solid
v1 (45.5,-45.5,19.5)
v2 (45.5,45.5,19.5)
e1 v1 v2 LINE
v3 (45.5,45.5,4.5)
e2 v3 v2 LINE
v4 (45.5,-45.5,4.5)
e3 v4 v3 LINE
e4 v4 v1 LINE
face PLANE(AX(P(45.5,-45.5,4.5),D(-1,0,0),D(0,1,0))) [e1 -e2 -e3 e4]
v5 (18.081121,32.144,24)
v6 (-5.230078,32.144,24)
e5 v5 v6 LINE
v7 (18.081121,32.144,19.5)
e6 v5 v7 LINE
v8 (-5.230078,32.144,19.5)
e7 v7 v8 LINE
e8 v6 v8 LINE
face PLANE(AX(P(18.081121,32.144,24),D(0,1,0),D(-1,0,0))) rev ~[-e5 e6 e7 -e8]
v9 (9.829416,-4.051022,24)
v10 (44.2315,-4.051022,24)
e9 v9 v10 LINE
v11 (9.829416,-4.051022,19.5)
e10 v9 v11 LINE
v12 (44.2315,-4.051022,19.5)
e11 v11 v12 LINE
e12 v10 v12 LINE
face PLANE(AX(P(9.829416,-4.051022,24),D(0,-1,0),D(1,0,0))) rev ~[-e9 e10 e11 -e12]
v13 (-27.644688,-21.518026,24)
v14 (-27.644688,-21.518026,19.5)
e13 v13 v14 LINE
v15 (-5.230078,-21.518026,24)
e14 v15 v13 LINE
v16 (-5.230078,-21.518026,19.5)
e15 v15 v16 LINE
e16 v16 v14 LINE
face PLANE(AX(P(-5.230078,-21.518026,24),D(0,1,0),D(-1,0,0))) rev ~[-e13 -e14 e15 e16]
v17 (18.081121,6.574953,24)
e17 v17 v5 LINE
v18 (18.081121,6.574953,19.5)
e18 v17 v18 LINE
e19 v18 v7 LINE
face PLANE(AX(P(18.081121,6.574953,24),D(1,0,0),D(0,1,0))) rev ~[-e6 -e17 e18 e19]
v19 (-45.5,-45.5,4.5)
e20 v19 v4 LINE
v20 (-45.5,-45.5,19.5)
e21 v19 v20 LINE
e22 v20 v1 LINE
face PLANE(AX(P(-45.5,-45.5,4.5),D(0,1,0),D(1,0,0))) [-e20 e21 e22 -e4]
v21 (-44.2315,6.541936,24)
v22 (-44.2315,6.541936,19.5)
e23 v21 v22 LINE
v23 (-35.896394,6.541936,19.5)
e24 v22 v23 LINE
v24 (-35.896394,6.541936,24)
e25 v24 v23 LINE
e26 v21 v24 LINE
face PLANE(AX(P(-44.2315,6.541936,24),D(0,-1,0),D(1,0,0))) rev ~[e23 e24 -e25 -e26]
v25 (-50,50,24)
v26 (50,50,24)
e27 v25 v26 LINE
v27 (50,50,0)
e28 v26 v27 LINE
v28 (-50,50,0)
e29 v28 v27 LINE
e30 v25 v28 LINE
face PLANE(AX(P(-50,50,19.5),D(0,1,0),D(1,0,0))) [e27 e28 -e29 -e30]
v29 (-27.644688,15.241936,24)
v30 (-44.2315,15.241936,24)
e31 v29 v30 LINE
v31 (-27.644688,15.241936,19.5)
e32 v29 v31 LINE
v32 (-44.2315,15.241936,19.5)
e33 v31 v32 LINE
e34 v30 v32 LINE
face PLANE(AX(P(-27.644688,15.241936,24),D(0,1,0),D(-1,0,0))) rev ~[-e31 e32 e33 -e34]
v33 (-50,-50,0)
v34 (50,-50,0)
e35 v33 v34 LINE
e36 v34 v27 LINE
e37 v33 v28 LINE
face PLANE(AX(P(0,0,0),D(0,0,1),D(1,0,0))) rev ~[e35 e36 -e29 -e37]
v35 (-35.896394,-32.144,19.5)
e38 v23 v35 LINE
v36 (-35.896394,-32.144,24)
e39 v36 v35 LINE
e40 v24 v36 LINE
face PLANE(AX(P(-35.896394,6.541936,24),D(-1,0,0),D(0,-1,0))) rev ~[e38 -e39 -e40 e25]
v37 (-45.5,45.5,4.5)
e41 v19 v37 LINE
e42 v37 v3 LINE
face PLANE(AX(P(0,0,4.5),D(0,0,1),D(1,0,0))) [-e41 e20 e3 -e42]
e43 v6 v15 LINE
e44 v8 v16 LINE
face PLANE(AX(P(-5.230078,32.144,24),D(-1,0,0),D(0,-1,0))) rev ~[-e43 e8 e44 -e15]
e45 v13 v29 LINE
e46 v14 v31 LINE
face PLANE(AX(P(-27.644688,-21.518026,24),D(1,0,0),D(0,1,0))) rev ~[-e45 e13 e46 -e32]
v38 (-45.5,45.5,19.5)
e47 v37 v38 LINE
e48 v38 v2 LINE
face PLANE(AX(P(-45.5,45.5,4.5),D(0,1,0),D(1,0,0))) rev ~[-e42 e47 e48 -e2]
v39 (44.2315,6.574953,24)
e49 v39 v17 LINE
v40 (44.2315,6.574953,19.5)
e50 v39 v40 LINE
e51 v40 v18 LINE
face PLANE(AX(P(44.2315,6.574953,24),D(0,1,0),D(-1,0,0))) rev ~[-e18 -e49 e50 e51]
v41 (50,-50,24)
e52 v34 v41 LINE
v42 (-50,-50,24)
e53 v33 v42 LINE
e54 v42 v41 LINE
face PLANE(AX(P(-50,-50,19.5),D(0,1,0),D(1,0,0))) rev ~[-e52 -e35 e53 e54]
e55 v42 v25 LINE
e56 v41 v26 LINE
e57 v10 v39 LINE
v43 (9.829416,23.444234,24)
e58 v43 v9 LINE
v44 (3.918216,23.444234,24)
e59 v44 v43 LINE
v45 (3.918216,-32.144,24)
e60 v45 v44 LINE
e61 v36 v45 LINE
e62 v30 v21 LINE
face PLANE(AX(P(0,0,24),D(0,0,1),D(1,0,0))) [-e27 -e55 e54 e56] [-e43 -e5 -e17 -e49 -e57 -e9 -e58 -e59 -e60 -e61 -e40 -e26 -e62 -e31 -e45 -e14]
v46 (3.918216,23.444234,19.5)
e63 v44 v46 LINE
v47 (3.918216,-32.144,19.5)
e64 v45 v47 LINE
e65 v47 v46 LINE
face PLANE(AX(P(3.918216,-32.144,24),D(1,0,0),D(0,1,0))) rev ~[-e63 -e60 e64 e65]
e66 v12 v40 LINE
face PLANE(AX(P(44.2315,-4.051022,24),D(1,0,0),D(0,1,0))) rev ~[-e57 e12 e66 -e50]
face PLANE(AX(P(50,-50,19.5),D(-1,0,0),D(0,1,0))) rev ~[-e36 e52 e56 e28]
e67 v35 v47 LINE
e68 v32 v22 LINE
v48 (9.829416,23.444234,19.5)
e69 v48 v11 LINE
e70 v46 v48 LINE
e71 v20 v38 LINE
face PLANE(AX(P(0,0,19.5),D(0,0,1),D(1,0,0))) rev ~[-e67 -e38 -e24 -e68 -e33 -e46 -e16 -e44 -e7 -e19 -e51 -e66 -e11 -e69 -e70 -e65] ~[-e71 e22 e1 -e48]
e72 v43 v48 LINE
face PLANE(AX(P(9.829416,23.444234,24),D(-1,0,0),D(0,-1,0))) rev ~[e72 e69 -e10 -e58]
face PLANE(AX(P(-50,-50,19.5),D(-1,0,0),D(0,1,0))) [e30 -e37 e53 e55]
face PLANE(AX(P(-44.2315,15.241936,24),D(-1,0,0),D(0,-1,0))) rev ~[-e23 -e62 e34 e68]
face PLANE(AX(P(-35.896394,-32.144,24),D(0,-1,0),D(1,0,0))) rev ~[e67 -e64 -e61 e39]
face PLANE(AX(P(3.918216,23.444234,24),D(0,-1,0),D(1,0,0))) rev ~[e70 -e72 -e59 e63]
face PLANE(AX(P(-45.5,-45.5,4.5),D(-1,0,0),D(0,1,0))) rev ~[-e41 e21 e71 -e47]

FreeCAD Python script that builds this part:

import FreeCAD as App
import Part
import Sketcher


def add_polygon(sketch, points):
    """Adds a closed chain of lines whose ends are joined by coincident constraints."""
    first, n = sketch.GeometryCount, len(points)
    for a, b in zip(points, points[1:] + points[:1]):
        sketch.addGeometry(Part.LineSegment(App.Vector(*a, 0), App.Vector(*b, 0)), False)
    for i in range(n):
        sketch.addConstraint(Sketcher.Constraint("Coincident", first + i, 2, first + (i + 1) % n, 1))

doc = App.newDocument("Part")
body = doc.addObject("PartDesign::Body", "Body")

# Sketch on XY plane
sketch1 = doc.addObject("Sketcher::SketchObject", "Sketch")
body.addObject(sketch1)
sketch1.AttachmentSupport = (doc.XY_Plane, [""])
sketch1.MapMode = "FlatFace"
add_polygon(sketch1, [(-50, 50), (-50, -50), (50, -50), (50, 50)])  # lines 0-3
sketch1.addConstraint(Sketcher.Constraint("Vertical", 0))
sketch1.addConstraint(Sketcher.Constraint("Horizontal", 1))
sketch1.addConstraint(Sketcher.Constraint("Vertical", 2))
sketch1.addConstraint(Sketcher.Constraint("Horizontal", 3))
sketch1.addConstraint(Sketcher.Constraint("Symmetric", 0, 2, 2, 2, -1, 1))
sketch1.addConstraint(Sketcher.Constraint("Equal", 3, 0))
sketch1.addConstraint(Sketcher.Constraint("DistanceX", 1, 1, 1, 2, 100.0))
pad1 = doc.addObject("PartDesign::Pad", "Pad")
body.addObject(pad1)
pad1.Profile = sketch1
pad1.Length = 4.5

# Sketch on XY plane
sketch2 = doc.addObject("Sketcher::SketchObject", "Sketch001")
body.addObject(sketch2)
sketch2.AttachmentSupport = (doc.XY_Plane, [""])
sketch2.MapMode = "FlatFace"
sketch2.AttachmentOffset = App.Placement(App.Vector(0, 0, 4.5), App.Rotation())
add_polygon(sketch2, [(-50, 50), (-50, -50), (50, -50), (50, 50)])  # lines 0-3
add_polygon(sketch2, [(45.5, -45.5), (-45.5, -45.5), (-45.5, 45.5), (45.5, 45.5)])  # lines 4-7
sketch2.addConstraint(Sketcher.Constraint("Vertical", 0))
sketch2.addConstraint(Sketcher.Constraint("Horizontal", 1))
sketch2.addConstraint(Sketcher.Constraint("Vertical", 2))
sketch2.addConstraint(Sketcher.Constraint("Horizontal", 3))
sketch2.addConstraint(Sketcher.Constraint("Horizontal", 4))
sketch2.addConstraint(Sketcher.Constraint("Vertical", 5))
sketch2.addConstraint(Sketcher.Constraint("Horizontal", 6))
sketch2.addConstraint(Sketcher.Constraint("Vertical", 7))
sketch2.addConstraint(Sketcher.Constraint("Symmetric", 0, 2, 2, 2, -1, 1))
sketch2.addConstraint(Sketcher.Constraint("Symmetric", 4, 2, 6, 2, -1, 1))
sketch2.addConstraint(Sketcher.Constraint("Equal", 3, 0))
sketch2.addConstraint(Sketcher.Constraint("Equal", 6, 5))
sketch2.addConstraint(Sketcher.Constraint("DistanceX", 1, 1, 1, 2, 100.0))
sketch2.addConstraint(Sketcher.Constraint("DistanceX", 4, 2, 4, 1, 91.0))
pad2 = doc.addObject("PartDesign::Pad", "Pad001")
body.addObject(pad2)
pad2.Profile = sketch2
pad2.Length = 15

# Sketch on XY plane
sketch3 = doc.addObject("Sketcher::SketchObject", "Sketch002")
body.addObject(sketch3)
sketch3.AttachmentSupport = (doc.XY_Plane, [""])
sketch3.MapMode = "FlatFace"
sketch3.AttachmentOffset = App.Placement(App.Vector(0, 0, 19.5), App.Rotation())
add_polygon(sketch3, [(-50, 50), (-50, -50), (50, -50), (50, 50)])  # lines 0-3
sketch3.addConstraint(Sketcher.Constraint("Vertical", 0))
sketch3.addConstraint(Sketcher.Constraint("Horizontal", 1))
sketch3.addConstraint(Sketcher.Constraint("Vertical", 2))
sketch3.addConstraint(Sketcher.Constraint("Horizontal", 3))
sketch3.addConstraint(Sketcher.Constraint("Symmetric", 0, 2, 2, 2, -1, 1))
sketch3.addConstraint(Sketcher.Constraint("Equal", 3, 0))
sketch3.addConstraint(Sketcher.Constraint("DistanceX", 1, 1, 1, 2, 100.0))
pad3 = doc.addObject("PartDesign::Pad", "Pad002")
body.addObject(pad3)
pad3.Profile = sketch3
pad3.Length = 4.5

# Sketch on XY plane
sketch4 = doc.addObject("Sketcher::SketchObject", "Sketch003")
body.addObject(sketch4)
sketch4.AttachmentSupport = (doc.XY_Plane, [""])
sketch4.MapMode = "FlatFace"
sketch4.AttachmentOffset = App.Placement(App.Vector(0, 0, 24), App.Rotation())
add_polygon(sketch4, [(44.2315, 6.574953), (18.081121, 6.574953), (18.081121, 32.144), (-5.230078, 32.144), (-5.230078, -21.518026), (-27.644688, -21.518026), (-27.644688, 15.241936), (-44.2315, 15.241936), (-44.2315, 6.541936), (-35.896394, 6.541936), (-35.896394, -32.144), (3.918216, -32.144), (3.918216, 23.444234), (9.829416, 23.444234), (9.829416, -4.051022), (44.2315, -4.051022)])  # lines 0-15
sketch4.addConstraint(Sketcher.Constraint("Horizontal", 0))
sketch4.addConstraint(Sketcher.Constraint("Vertical", 1))
sketch4.addConstraint(Sketcher.Constraint("Horizontal", 2))
sketch4.addConstraint(Sketcher.Constraint("Vertical", 3))
sketch4.addConstraint(Sketcher.Constraint("Horizontal", 4))
sketch4.addConstraint(Sketcher.Constraint("Vertical", 5))
sketch4.addConstraint(Sketcher.Constraint("Horizontal", 6))
sketch4.addConstraint(Sketcher.Constraint("Vertical", 7))
sketch4.addConstraint(Sketcher.Constraint("Horizontal", 8))
sketch4.addConstraint(Sketcher.Constraint("Vertical", 9))
sketch4.addConstraint(Sketcher.Constraint("Horizontal", 10))
sketch4.addConstraint(Sketcher.Constraint("Vertical", 11))
sketch4.addConstraint(Sketcher.Constraint("Horizontal", 12))
sketch4.addConstraint(Sketcher.Constraint("Vertical", 13))
sketch4.addConstraint(Sketcher.Constraint("Horizontal", 14))
sketch4.addConstraint(Sketcher.Constraint("Vertical", 15))
sketch4.addConstraint(Sketcher.Constraint("DistanceY", 7, 2, 7, 1, 8.7))
sketch4.addConstraint(Sketcher.Constraint("DistanceX", 2, 2, 2, 1, 23.311199))
sketch4.addConstraint(Sketcher.Constraint("DistanceX", 12, 1, 12, 2, 5.9112))
sketch4.addConstraint(Sketcher.Constraint("DistanceY", -1, 1, 1, 2, 32.144))
sketch4.addConstraint(Sketcher.Constraint("DistanceY", 9, 2, -1, 1, 32.144))
sketch4.addConstraint(Sketcher.Constraint("DistanceX", 0, 2, 0, 1, 26.150379))
sketch4.addConstraint(Sketcher.Constraint("DistanceX", 4, 2, 4, 1, 22.41461))
sketch4.addConstraint(Sketcher.Constraint("DistanceX", 6, 2, 6, 1, 16.586812))
sketch4.addConstraint(Sketcher.Constraint("DistanceX", 10, 1, 10, 2, 39.81461))
sketch4.addConstraint(Sketcher.Constraint("DistanceX", 6, 2, -1, 1, 44.2315))
sketch4.addConstraint(Sketcher.Constraint("DistanceY", 5, 2, 11, 2, 8.202298))
sketch4.addConstraint(Sketcher.Constraint("DistanceX", 8, 1, 8, 2, 8.335106))
sketch4.addConstraint(Sketcher.Constraint("DistanceY", 1, 1, 1, 2, 25.569047))
sketch4.addConstraint(Sketcher.Constraint("DistanceY", 3, 2, 3, 1, 53.662026))
sketch4.addConstraint(Sketcher.Constraint("DistanceY", 5, 1, 5, 2, 36.759962))
sketch4.addConstraint(Sketcher.Constraint("DistanceY", 13, 2, 13, 1, 27.495256))
pocket1 = doc.addObject("PartDesign::Pocket", "Pocket")
body.addObject(pocket1)
pocket1.Profile = sketch4
pocket1.Length = 6

doc.recompute()
